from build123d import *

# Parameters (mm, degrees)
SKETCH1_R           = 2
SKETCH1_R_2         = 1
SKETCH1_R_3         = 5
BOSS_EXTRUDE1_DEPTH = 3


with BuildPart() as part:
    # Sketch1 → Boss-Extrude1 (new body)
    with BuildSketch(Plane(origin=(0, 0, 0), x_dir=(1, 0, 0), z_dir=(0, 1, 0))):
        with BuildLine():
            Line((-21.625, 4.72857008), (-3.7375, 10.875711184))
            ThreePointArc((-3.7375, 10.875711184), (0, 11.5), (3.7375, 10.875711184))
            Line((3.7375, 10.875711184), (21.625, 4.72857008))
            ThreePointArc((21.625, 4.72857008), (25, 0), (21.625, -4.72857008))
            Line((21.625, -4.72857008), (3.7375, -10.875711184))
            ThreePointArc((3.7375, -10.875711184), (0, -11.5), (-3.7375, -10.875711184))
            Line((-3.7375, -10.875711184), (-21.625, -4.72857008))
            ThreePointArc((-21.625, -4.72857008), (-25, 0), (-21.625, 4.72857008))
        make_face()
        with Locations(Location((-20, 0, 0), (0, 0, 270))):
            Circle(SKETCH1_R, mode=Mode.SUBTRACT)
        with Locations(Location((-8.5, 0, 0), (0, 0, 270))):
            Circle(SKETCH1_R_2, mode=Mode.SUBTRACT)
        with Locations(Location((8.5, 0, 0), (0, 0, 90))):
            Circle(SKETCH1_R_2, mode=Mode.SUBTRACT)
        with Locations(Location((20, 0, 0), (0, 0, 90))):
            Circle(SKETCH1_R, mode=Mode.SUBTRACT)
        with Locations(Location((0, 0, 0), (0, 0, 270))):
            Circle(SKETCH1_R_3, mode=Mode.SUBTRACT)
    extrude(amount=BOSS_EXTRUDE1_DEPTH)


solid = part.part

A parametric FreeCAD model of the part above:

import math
import FreeCAD as App
import Part
import Sketcher
from FreeCAD import Vector
Q = App.Units.Quantity

doc = App.newDocument("Part")
body = doc.addObject("PartDesign::Body", "Body")

sketch1 = body.newObject("Sketcher::SketchObject", "Sketch")
sketch1.AttachmentSupport = (doc.getObject("XZ_Plane"), [""])
sketch1.MapMode = "FlatFace"
sketch1.addGeometry(Part.LineSegment(Vector(-3.7375, -10.875711, 0), Vector(-21.625, -4.72857, 0)), False)
sketch1.addGeometry(Part.ArcOfCircle(Part.Circle(Vector(-20, 0, 0), Vector(0, 0, 1), 5), math.radians(108.965575), math.radians(251.034425)), False)
sketch1.addGeometry(Part.LineSegment(Vector(-21.625, 4.72857, 0), Vector(-3.7375, 10.875711, 0)), False)
sketch1.addGeometry(Part.ArcOfCircle(Part.Circle(Vector(0, 0, 0), Vector(0, 0, 1), 11.5), math.radians(71.034425), math.radians(108.965575)), False)
sketch1.addGeometry(Part.LineSegment(Vector(3.7375, 10.875711, 0), Vector(21.625, 4.72857, 0)), False)
sketch1.addGeometry(Part.ArcOfCircle(Part.Circle(Vector(20, 0, 0), Vector(0, 0, 1), 5), math.radians(-71.034425), math.radians(71.034425)), False)
sketch1.addGeometry(Part.LineSegment(Vector(21.625, -4.72857, 0), Vector(3.7375, -10.875711, 0)), False)
sketch1.addGeometry(Part.ArcOfCircle(Part.Circle(Vector(0, 0, 0), Vector(0, 0, 1), 11.5), math.radians(-108.965575), math.radians(-71.034425)), False)
sketch1.addGeometry(Part.Circle(Vector(20, 0, 0), Vector(0, 0, 1), 2), False)
sketch1.addGeometry(Part.Circle(Vector(8.5, 0, 0), Vector(0, 0, 1), 1), False)
sketch1.addGeometry(Part.Circle(Vector(0, 0, 0), Vector(0, 0, 1), 5), False)
sketch1.addGeometry(Part.Circle(Vector(-8.5, 0, 0), Vector(0, 0, 1), 1), False)
sketch1.addGeometry(Part.Circle(Vector(-20, 0, 0), Vector(0, 0, 1), 2), False)
sketch1.addConstraint(Sketcher.Constraint("Tangent", 0, 2, 1, 2))
sketch1.addConstraint(Sketcher.Constraint("Tangent", 1, 1, 2, 1))
sketch1.addConstraint(Sketcher.Constraint("Tangent", 2, 2, 3, 2))
sketch1.addConstraint(Sketcher.Constraint("Tangent", 3, 1, 4, 1))
sketch1.addConstraint(Sketcher.Constraint("Tangent", 4, 2, 5, 2))
sketch1.addConstraint(Sketcher.Constraint("Tangent", 5, 1, 6, 1))
sketch1.addConstraint(Sketcher.Constraint("Tangent", 6, 2, 7, 2))
sketch1.addConstraint(Sketcher.Constraint("Tangent", 7, 1, 0, 1))
sketch1.addConstraint(Sketcher.Constraint("Coincident", 3, 3, -1, 1))
sketch1.addConstraint(Sketcher.Constraint("Coincident", 7, 3, -1, 1))
sketch1.addConstraint(Sketcher.Constraint("Coincident", 10, 3, -1, 1))
sketch1.addConstraint(Sketcher.Constraint("Coincident", 8, 3, 5, 3))
sketch1.addConstraint(Sketcher.Constraint("Coincident", 12, 3, 1, 3))
sketch1.addConstraint(Sketcher.Constraint("Equal", 1, 5))
sketch1.addConstraint(Sketcher.Constraint("Equal", 3, 7))
sketch1.addConstraint(Sketcher.Constraint("Equal", 5, 10))
sketch1.addConstraint(Sketcher.Constraint("Equal", 9, 11))
sketch1.addConstraint(Sketcher.Constraint("Equal", 8, 12))
sketch1.addConstraint(Sketcher.Constraint("Symmetric", 1, 3, 5, 3, -1, 1))
sketch1.addConstraint(Sketcher.Constraint("Symmetric", 9, 3, 11, 3, -1, 1))
sketch1.addConstraint(Sketcher.Constraint("PointOnObject", 1, 3, -1))
sketch1.addConstraint(Sketcher.Constraint("PointOnObject", 9, 3, -1))
sketch1.addConstraint(Sketcher.Constraint("Diameter", 8, Q("4 mm")))
sketch1.addConstraint(Sketcher.Constraint("Diameter", 9, Q("2 mm")))
sketch1.addConstraint(Sketcher.Constraint("Diameter", 10, Q("10 mm")))
sketch1.addConstraint(Sketcher.Constraint("Radius", 3, Q("11.5 mm")))
sketch1.addConstraint(Sketcher.Constraint("DistanceX", 1, 3, -1, 1, Q("20 mm")))
sketch1.addConstraint(Sketcher.Constraint("DistanceX", 11, 3, 9, 3, Q("17 mm")))
pad1 = body.newObject("PartDesign::Pad", "Pad")
pad1.Profile = sketch1
pad1.Length = 3
pad1.Reversed = True

doc.recompute()
